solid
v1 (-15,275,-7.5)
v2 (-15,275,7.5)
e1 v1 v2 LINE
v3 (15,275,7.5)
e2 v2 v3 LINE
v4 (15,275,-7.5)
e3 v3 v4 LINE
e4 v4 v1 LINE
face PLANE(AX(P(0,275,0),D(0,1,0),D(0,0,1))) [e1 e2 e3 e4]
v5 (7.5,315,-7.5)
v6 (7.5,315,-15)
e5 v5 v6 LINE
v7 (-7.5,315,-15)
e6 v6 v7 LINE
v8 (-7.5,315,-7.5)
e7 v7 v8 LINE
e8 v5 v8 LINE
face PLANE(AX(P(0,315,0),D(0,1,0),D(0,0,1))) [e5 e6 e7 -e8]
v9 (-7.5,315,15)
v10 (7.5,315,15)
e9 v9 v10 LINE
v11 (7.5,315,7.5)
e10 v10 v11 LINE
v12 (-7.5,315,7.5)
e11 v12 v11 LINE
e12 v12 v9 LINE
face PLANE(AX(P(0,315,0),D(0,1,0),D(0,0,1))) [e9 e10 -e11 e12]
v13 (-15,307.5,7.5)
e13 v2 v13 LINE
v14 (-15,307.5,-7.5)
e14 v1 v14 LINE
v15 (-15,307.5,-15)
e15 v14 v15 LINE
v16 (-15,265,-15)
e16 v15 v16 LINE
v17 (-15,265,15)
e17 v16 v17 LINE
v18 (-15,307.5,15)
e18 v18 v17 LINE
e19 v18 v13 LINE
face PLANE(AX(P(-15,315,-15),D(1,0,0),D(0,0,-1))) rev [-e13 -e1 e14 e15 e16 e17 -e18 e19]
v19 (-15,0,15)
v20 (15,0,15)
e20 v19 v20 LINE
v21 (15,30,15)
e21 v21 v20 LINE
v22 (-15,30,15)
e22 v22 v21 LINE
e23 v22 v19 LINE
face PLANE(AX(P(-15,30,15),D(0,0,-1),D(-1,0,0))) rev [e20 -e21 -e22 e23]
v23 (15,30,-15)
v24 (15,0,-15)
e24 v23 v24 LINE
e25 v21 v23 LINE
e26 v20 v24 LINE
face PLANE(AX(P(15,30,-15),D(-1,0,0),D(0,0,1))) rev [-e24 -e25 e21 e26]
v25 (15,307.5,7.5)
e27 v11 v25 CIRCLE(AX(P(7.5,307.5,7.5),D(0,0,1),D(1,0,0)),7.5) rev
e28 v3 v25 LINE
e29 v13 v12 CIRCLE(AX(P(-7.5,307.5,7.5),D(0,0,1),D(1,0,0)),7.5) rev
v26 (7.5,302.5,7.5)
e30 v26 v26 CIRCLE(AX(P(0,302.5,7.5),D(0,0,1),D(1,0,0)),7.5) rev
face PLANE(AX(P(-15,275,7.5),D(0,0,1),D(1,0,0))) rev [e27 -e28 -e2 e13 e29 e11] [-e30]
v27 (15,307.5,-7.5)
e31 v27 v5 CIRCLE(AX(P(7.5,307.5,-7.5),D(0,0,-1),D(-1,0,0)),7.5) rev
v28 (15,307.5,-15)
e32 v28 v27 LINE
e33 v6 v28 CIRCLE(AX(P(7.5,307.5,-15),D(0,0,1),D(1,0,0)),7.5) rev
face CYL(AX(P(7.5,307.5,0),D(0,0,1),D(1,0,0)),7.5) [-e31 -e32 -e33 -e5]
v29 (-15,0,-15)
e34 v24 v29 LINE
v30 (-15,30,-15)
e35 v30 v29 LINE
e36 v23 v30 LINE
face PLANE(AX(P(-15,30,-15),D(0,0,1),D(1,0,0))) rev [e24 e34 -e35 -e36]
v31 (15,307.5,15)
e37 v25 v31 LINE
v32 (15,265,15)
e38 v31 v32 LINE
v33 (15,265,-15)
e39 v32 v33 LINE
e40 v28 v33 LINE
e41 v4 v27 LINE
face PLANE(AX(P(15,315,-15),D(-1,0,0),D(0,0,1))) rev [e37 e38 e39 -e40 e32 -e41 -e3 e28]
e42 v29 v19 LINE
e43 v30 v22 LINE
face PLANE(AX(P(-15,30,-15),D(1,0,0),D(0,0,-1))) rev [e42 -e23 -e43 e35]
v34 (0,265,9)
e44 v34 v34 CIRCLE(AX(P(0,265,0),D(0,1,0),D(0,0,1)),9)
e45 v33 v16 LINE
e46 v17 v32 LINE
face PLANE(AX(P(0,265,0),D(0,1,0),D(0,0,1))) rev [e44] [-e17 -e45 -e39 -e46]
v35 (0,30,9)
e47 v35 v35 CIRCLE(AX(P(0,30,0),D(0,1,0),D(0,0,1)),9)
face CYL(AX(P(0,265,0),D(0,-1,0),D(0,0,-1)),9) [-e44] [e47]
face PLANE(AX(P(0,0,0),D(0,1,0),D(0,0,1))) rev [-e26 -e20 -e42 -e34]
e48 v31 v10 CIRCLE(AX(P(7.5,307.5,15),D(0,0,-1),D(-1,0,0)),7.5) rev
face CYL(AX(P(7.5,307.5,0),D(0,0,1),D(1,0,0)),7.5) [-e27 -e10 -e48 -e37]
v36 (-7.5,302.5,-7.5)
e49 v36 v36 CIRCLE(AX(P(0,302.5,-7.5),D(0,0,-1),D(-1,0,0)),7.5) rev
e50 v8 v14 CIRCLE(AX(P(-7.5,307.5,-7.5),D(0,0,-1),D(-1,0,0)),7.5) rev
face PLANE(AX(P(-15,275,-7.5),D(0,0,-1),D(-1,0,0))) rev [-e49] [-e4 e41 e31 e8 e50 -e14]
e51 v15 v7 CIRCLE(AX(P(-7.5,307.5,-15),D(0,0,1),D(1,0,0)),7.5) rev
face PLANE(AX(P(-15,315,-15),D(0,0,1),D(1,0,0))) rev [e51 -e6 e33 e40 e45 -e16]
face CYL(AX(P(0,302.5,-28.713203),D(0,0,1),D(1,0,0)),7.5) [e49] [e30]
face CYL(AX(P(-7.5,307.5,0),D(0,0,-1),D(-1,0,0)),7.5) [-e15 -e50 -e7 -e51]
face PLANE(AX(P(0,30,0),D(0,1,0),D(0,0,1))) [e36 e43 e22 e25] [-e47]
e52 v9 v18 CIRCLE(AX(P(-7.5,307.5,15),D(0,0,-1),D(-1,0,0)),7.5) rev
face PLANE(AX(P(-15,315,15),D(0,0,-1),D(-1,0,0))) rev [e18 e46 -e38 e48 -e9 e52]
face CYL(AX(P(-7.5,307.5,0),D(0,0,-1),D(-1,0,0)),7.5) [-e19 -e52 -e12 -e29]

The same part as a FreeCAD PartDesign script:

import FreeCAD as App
import Part
import Sketcher
from FreeCAD import Vector
Q = App.Units.Quantity


def edges_at(feature, points):
    """Names of the edges that pass closest to the given points."""
    edges = feature.Shape.Edges
    near = lambda p: min(range(len(edges)), key=lambda i: edges[i].distToShape(Part.Vertex(*p))[0])
    return sorted({f"Edge{near(p) + 1}" for p in points})


def add_polygon(sketch, points):
    """Adds a closed chain of lines whose ends are joined by coincident constraints."""
    first, n = sketch.GeometryCount, len(points)
    for a, b in zip(points, points[1:] + points[:1]):
        sketch.addGeometry(Part.LineSegment(App.Vector(*a, 0), App.Vector(*b, 0)), False)
    for i in range(n):
        sketch.addConstraint(Sketcher.Constraint("Coincident", first + i, 2, first + (i + 1) % n, 1))

doc = App.newDocument("Part")
body = doc.addObject("PartDesign::Body", "Body")

sketch1 = doc.addObject("Sketcher::SketchObject", "Sketch")
body.addObject(sketch1)
sketch1.AttachmentSupport = (doc.XZ_Plane, [""])
sketch1.MapMode = "FlatFace"
add_polygon(sketch1, [(-15, -15), (-15, 15), (15, 15), (15, -15)])
sketch1.addConstraint([
    Sketcher.Constraint("Vertical", 0),
    Sketcher.Constraint("Horizontal", 1),
    Sketcher.Constraint("Vertical", 2),
    Sketcher.Constraint("Horizontal", 3),
    Sketcher.Constraint("Symmetric", 0, 2, 2, 2, -1, 1),
    Sketcher.Constraint("Equal", 3, 0),
    Sketcher.Constraint("DistanceX", 1, 1, 1, 2, Q("30 mm")),
])
pad1 = doc.addObject("PartDesign::Pad", "Pad")
body.addObject(pad1)
pad1.Profile = sketch1
pad1.Length = 30
pad1.Reversed = True

sketch2 = doc.addObject("Sketcher::SketchObject", "Sketch001")
body.addObject(sketch2)
sketch2.AttachmentSupport = (doc.XZ_Plane, [""])
sketch2.MapMode = "FlatFace"
sketch2.AttachmentOffset = App.Placement(Vector(0, 0, -30), App.Rotation())
sketch2.addGeometry(Part.Circle(Vector(0, 0, 0), Vector(0, 0, 1), 9), False)
sketch2.addConstraint([
    Sketcher.Constraint("Coincident", 0, 3, -1, 1),
    Sketcher.Constraint("Diameter", 0, Q("18 mm")),
])
pad2 = doc.addObject("PartDesign::Pad", "Pad001")
body.addObject(pad2)
pad2.Profile = sketch2
pad2.Length = 235
pad2.Reversed = True

sketch3 = doc.addObject("Sketcher::SketchObject", "Sketch002")
body.addObject(sketch3)
sketch3.AttachmentSupport = (doc.XZ_Plane, [""])
sketch3.MapMode = "FlatFace"
sketch3.AttachmentOffset = App.Placement(Vector(0, 0, -265), App.Rotation())
add_polygon(sketch3, [(-15, -15), (-15, 15), (15, 15), (15, -15)])
sketch3.addConstraint([
    Sketcher.Constraint("Vertical", 0),
    Sketcher.Constraint("Horizontal", 1),
    Sketcher.Constraint("Vertical", 2),
    Sketcher.Constraint("Horizontal", 3),
    Sketcher.Constraint("Symmetric", 0, 2, 2, 2, -1, 1),
    Sketcher.Constraint("Equal", 3, 0),
    Sketcher.Constraint("DistanceX", 1, 1, 1, 2, Q("30 mm")),
])
pad3 = doc.addObject("PartDesign::Pad", "Pad002")
body.addObject(pad3)
pad3.Profile = sketch3
pad3.Length = 50
pad3.Reversed = True

sketch4 = doc.addObject("Sketcher::SketchObject", "Sketch003")
body.addObject(sketch4)
sketch4.AttachmentSupport = (doc.XZ_Plane, [""])
sketch4.MapMode = "FlatFace"
sketch4.AttachmentOffset = App.Placement(Vector(0, 0, -315), App.Rotation())
add_polygon(sketch4, [(-15, -8), (-15, 8), (15, 8), (15, -8)])
sketch4.addConstraint([
    Sketcher.Constraint("Vertical", 0),
    Sketcher.Constraint("Horizontal", 1),
    Sketcher.Constraint("Vertical", 2),
    Sketcher.Constraint("Horizontal", 3),
    Sketcher.Constraint("Symmetric", 0, 2, 2, 2, -1, 1),
    Sketcher.Constraint("DistanceX", 1, 1, 1, 2, Q("30 mm")),
    Sketcher.Constraint("DistanceY", 0, 1, 0, 2, Q("15 mm")),
])
pocket1 = doc.addObject("PartDesign::Pocket", "Pocket")
body.addObject(pocket1)
pocket1.Profile = sketch4
pocket1.Length = 40
pocket1.Reversed = True

sketch5 = doc.addObject("Sketcher::SketchObject", "Sketch004")
body.addObject(sketch5)
sketch5.AttachmentSupport = (doc.XY_Plane, [""])
sketch5.MapMode = "FlatFace"
sketch5.AttachmentOffset = App.Placement(Vector(0, 0, 7.5), App.Rotation())
sketch5.addGeometry(Part.Circle(Vector(0, 302, 0), Vector(0, 0, 1), 8), False)
sketch5.addConstraint([
    Sketcher.Constraint("PointOnObject", 0, 3, -2),
    Sketcher.Constraint("Diameter", 0, Q("15 mm")),
    Sketcher.Constraint("DistanceY", -1, 1, 0, 3, Q("302.5 mm")),
])
pad4 = doc.addObject("PartDesign::Pad", "Pad003")
body.addObject(pad4)
pad4.Profile = sketch5
pad4.Length = 15
pad4.Reversed = True
doc.recompute()

fillet = doc.addObject("PartDesign::Fillet", "Fillet")
body.addObject(fillet)
fillet.Base = (pad4, edges_at(pad4, [
    (15, 315, 11.25),
    (-15, 315, -11.25),
    (15, 315, -11.25),
    (-15, 315, 11.25),
]))
fillet.Radius = 7.5

doc.recompute()
